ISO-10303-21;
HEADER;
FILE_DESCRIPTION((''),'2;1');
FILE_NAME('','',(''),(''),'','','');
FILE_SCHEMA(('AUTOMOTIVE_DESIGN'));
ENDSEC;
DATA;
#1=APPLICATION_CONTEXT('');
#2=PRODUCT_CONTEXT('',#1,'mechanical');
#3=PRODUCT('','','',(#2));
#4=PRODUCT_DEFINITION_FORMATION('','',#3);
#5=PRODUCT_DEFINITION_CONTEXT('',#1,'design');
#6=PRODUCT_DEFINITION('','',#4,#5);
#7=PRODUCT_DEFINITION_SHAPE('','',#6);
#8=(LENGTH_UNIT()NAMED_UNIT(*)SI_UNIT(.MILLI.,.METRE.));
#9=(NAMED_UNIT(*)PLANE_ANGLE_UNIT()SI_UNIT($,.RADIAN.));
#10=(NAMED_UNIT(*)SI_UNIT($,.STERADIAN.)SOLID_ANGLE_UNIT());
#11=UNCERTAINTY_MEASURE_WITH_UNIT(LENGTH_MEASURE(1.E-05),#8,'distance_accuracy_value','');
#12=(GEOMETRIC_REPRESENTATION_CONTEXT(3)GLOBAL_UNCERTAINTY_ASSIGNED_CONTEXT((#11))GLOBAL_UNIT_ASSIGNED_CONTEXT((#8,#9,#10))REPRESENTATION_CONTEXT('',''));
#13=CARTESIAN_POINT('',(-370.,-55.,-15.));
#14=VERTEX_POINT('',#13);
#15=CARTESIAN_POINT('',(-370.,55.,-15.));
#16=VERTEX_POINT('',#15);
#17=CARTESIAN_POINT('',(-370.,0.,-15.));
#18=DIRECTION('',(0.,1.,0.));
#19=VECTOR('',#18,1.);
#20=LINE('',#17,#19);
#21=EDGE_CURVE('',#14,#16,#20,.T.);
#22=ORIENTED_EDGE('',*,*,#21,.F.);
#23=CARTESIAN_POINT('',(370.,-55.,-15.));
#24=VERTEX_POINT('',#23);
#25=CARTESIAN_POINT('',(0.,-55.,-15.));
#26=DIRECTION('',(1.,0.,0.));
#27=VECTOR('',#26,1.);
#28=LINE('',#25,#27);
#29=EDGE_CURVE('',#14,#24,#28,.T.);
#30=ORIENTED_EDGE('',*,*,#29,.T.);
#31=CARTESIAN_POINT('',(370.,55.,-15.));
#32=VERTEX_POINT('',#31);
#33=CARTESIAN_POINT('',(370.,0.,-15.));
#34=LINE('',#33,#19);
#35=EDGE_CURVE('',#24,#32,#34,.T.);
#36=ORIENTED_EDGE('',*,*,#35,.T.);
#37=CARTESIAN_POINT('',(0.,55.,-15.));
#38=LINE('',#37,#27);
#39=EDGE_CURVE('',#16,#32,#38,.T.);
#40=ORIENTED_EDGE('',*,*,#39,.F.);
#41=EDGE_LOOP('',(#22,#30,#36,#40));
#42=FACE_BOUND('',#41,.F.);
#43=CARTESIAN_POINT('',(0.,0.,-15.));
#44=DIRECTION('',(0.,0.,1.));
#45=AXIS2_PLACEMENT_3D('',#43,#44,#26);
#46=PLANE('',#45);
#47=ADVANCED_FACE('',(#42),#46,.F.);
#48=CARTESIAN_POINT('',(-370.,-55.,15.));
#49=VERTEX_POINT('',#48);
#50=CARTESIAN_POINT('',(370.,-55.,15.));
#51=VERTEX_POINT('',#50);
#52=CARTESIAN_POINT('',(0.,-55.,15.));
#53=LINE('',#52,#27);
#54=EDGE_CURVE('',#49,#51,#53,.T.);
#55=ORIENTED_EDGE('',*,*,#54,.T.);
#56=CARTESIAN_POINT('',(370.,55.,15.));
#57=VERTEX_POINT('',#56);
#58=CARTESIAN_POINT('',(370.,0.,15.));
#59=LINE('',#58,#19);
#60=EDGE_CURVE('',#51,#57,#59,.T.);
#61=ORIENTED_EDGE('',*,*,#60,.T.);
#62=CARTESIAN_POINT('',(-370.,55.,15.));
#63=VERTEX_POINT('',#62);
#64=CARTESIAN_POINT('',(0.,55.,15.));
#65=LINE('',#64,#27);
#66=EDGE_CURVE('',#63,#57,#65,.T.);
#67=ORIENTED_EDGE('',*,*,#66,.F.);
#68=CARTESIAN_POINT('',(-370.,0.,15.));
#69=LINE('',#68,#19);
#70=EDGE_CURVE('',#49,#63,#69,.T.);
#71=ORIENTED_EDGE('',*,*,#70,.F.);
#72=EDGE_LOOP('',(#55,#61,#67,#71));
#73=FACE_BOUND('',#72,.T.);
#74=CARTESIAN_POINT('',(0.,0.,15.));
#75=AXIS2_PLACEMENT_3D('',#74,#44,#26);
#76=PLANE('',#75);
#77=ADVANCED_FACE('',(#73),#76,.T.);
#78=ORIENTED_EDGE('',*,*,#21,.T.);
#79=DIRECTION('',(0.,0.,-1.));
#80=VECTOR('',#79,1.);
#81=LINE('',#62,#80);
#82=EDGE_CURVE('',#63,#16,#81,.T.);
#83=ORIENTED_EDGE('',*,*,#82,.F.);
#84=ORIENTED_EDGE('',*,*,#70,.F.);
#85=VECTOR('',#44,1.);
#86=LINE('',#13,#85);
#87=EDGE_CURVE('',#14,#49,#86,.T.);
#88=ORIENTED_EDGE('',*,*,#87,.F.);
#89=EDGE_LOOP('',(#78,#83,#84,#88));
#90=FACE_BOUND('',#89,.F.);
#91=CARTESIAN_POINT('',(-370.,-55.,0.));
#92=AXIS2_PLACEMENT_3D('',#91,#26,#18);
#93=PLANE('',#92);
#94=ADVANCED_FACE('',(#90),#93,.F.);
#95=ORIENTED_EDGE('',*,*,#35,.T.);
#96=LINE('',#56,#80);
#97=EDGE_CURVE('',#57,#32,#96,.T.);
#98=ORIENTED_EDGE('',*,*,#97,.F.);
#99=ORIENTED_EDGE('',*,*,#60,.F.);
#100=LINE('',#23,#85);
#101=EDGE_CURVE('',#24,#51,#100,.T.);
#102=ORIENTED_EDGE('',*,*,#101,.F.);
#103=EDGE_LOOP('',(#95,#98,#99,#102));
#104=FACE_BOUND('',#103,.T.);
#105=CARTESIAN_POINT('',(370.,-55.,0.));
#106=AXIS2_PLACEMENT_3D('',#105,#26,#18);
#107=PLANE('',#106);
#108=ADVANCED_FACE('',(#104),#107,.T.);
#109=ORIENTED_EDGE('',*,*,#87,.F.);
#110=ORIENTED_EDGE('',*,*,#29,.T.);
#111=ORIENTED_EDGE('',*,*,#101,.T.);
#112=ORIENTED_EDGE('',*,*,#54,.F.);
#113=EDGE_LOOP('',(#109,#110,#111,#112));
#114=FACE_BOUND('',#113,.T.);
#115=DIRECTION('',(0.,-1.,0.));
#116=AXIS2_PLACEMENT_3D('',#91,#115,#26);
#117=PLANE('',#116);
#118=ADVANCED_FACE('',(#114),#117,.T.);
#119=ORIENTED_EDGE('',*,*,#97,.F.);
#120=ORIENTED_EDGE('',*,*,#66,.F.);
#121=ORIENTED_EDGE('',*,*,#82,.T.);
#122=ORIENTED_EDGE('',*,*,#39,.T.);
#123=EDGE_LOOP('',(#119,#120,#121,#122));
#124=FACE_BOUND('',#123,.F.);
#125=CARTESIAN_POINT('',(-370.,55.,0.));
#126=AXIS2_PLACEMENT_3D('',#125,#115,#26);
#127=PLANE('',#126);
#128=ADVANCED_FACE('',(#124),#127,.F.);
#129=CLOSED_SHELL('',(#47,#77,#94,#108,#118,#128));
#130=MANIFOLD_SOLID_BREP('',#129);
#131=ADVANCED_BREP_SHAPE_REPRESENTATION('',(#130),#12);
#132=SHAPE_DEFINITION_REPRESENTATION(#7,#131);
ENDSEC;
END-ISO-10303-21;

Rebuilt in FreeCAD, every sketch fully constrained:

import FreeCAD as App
import Part
import Sketcher
from FreeCAD import Vector


def add_polygon(sketch, points):
    """Adds a closed chain of lines whose ends are joined by coincident constraints."""
    first, n = sketch.GeometryCount, len(points)
    for a, b in zip(points, points[1:] + points[:1]):
        sketch.addGeometry(Part.LineSegment(App.Vector(*a, 0), App.Vector(*b, 0)), False)
    for i in range(n):
        sketch.addConstraint(Sketcher.Constraint("Coincident", first + i, 2, first + (i + 1) % n, 1))

doc = App.newDocument("Part")
body = doc.addObject("PartDesign::Body", "Body")

# Sketch on XY plane
sketch1 = body.newObject("Sketcher::SketchObject", "Sketch")
sketch1.AttachmentSupport = (doc.getObject("XY_Plane"), [""])
sketch1.MapMode = "FlatFace"
add_polygon(sketch1, [(-370, 55), (-370, -55), (370, -55), (370, 55)])  # lines 0-3
sketch1.addConstraint(Sketcher.Constraint("Vertical", 0))
sketch1.addConstraint(Sketcher.Constraint("Horizontal", 1))
sketch1.addConstraint(Sketcher.Constraint("Vertical", 2))
sketch1.addConstraint(Sketcher.Constraint("Horizontal", 3))
sketch1.addConstraint(Sketcher.Constraint("Symmetric", 0, 2, 2, 2, -1, 1))
sketch1.addConstraint(Sketcher.Constraint("DistanceX", 1, 1, 1, 2, 740.0))
sketch1.addConstraint(Sketcher.Constraint("DistanceY", 0, 2, 0, 1, 110.0))
pad1 = body.newObject("PartDesign::Pad", "Pad")
pad1.Profile = sketch1
pad1.Length = 30
pad1.Midplane = True

doc.recompute()
